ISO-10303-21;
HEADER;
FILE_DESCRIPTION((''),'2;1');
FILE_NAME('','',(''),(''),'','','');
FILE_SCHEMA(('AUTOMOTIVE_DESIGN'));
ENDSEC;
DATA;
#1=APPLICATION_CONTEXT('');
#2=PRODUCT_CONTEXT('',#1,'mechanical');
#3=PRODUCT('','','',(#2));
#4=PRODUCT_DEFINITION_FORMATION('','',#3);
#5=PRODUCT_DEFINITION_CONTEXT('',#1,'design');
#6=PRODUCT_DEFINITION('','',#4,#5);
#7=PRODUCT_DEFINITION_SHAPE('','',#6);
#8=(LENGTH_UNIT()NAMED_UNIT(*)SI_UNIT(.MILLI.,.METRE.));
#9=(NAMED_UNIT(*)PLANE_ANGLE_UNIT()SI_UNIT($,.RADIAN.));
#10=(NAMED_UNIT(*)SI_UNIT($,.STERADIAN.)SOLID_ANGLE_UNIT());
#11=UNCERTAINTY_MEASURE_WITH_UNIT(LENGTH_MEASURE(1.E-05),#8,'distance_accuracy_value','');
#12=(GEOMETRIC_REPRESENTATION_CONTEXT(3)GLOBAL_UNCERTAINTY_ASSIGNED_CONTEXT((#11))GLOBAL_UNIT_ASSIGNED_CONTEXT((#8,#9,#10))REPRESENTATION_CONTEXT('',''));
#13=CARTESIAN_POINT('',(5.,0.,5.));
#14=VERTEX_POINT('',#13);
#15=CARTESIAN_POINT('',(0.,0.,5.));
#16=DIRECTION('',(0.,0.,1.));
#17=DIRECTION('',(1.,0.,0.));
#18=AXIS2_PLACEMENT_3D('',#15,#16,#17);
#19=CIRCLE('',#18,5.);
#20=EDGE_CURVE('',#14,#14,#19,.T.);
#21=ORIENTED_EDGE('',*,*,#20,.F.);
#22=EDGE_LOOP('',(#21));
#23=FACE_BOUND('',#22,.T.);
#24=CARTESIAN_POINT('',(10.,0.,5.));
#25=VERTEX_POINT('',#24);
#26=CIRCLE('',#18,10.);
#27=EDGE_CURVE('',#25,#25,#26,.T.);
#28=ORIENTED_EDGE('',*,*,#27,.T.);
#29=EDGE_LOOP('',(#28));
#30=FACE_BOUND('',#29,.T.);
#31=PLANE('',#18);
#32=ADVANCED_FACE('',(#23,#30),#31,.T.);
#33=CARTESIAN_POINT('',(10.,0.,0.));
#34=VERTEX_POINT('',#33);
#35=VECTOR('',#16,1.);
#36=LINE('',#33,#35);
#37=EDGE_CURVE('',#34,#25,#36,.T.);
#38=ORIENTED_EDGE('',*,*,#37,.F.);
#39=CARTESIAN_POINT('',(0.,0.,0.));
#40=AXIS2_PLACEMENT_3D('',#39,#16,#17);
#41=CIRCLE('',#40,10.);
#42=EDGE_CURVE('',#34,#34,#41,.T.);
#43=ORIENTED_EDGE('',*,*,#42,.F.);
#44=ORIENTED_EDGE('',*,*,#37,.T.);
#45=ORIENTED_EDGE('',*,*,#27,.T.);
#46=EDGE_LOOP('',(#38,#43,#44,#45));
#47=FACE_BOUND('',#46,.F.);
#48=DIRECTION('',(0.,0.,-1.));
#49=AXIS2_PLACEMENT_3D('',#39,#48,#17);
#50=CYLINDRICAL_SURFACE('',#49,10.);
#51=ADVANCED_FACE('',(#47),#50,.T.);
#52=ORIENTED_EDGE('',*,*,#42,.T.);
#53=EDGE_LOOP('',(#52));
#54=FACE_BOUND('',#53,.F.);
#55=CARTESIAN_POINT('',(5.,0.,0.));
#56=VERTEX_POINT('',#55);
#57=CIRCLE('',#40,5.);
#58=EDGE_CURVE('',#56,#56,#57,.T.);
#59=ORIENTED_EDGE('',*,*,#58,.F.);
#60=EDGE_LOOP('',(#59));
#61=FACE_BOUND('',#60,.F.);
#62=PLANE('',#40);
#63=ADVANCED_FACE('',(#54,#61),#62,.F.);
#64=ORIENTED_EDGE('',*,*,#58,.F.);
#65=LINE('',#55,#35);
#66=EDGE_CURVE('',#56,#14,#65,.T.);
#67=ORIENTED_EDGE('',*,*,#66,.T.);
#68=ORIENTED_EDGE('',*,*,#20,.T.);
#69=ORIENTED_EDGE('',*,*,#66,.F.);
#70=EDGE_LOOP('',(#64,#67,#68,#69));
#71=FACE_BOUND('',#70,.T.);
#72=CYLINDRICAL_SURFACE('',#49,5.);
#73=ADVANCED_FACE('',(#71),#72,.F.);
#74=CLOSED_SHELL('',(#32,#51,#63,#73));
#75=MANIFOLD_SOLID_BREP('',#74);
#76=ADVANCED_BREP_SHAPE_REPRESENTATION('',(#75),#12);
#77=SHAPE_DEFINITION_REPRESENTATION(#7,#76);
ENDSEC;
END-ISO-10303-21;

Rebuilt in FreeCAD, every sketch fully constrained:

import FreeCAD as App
import Part
import Sketcher

V = App.Vector
Q = App.Units.Quantity

doc = App.newDocument("Part")
body = doc.addObject("PartDesign::Body", "Body")

sketch1 = body.newObject("Sketcher::SketchObject", "Sketch")
sketch1.AttachmentSupport = (doc.getObject("XY_Plane"), [""])
sketch1.MapMode = "FlatFace"
sketch1.addGeometry(Part.Circle(V(0, 0, 0), V(0, 0, 1), 10), False)
sketch1.addGeometry(Part.Circle(V(0, 0, 0), V(0, 0, 1), 5), False)
sketch1.addConstraint(Sketcher.Constraint("Coincident", 0, 3, -1, 1))
sketch1.addConstraint(Sketcher.Constraint("Coincident", 1, 3, -1, 1))
sketch1.addConstraint(Sketcher.Constraint("Diameter", 0, Q("20 mm")))
sketch1.addConstraint(Sketcher.Constraint("Diameter", 1, Q("10 mm")))
pad1 = body.newObject("PartDesign::Pad", "Pad")
pad1.Profile = sketch1
pad1.Length = 5

doc.recompute()
